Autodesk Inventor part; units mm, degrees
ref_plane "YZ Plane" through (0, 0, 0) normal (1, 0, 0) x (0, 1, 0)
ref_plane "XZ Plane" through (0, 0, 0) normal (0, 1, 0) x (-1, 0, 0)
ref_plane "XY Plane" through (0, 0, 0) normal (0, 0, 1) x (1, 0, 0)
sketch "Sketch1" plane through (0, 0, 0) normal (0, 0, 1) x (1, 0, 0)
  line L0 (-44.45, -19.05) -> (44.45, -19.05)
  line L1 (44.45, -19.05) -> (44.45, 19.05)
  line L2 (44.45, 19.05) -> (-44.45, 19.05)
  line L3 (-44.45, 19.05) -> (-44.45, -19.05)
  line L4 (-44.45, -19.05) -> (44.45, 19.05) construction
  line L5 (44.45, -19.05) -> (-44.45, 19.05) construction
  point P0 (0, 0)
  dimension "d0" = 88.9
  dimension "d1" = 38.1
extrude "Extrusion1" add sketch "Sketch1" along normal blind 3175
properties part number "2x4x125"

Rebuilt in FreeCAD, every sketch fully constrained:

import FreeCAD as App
import Part
import Sketcher
Q = App.Units.Quantity


def add_polygon(sketch, points):
    """Adds a closed chain of lines whose ends are joined by coincident constraints."""
    first, n = sketch.GeometryCount, len(points)
    for a, b in zip(points, points[1:] + points[:1]):
        sketch.addGeometry(Part.LineSegment(App.Vector(*a, 0), App.Vector(*b, 0)), False)
    for i in range(n):
        sketch.addConstraint(Sketcher.Constraint("Coincident", first + i, 2, first + (i + 1) % n, 1))

doc = App.newDocument("Part")
body = doc.addObject("PartDesign::Body", "Body")

sketch1 = body.newObject("Sketcher::SketchObject", "Sketch")
sketch1.AttachmentSupport = (doc.getObject("XY_Plane"), [""])
sketch1.MapMode = "FlatFace"
add_polygon(sketch1, [(-44, 19), (-44, -19), (44, -19), (44, 19)])
sketch1.addConstraint([
    Sketcher.Constraint("Vertical", 0),
    Sketcher.Constraint("Horizontal", 1),
    Sketcher.Constraint("Vertical", 2),
    Sketcher.Constraint("Horizontal", 3),
    Sketcher.Constraint("Symmetric", 0, 2, 2, 2, -1, 1),
    Sketcher.Constraint("DistanceX", 1, 1, 1, 2, Q("3.5 in")),
    Sketcher.Constraint("DistanceY", 0, 2, 0, 1, Q("1.5 in")),
])
pad1 = body.newObject("PartDesign::Pad", "Pad")
pad1.Profile = sketch1
pad1.Length = Q("125 in")

doc.recompute()
